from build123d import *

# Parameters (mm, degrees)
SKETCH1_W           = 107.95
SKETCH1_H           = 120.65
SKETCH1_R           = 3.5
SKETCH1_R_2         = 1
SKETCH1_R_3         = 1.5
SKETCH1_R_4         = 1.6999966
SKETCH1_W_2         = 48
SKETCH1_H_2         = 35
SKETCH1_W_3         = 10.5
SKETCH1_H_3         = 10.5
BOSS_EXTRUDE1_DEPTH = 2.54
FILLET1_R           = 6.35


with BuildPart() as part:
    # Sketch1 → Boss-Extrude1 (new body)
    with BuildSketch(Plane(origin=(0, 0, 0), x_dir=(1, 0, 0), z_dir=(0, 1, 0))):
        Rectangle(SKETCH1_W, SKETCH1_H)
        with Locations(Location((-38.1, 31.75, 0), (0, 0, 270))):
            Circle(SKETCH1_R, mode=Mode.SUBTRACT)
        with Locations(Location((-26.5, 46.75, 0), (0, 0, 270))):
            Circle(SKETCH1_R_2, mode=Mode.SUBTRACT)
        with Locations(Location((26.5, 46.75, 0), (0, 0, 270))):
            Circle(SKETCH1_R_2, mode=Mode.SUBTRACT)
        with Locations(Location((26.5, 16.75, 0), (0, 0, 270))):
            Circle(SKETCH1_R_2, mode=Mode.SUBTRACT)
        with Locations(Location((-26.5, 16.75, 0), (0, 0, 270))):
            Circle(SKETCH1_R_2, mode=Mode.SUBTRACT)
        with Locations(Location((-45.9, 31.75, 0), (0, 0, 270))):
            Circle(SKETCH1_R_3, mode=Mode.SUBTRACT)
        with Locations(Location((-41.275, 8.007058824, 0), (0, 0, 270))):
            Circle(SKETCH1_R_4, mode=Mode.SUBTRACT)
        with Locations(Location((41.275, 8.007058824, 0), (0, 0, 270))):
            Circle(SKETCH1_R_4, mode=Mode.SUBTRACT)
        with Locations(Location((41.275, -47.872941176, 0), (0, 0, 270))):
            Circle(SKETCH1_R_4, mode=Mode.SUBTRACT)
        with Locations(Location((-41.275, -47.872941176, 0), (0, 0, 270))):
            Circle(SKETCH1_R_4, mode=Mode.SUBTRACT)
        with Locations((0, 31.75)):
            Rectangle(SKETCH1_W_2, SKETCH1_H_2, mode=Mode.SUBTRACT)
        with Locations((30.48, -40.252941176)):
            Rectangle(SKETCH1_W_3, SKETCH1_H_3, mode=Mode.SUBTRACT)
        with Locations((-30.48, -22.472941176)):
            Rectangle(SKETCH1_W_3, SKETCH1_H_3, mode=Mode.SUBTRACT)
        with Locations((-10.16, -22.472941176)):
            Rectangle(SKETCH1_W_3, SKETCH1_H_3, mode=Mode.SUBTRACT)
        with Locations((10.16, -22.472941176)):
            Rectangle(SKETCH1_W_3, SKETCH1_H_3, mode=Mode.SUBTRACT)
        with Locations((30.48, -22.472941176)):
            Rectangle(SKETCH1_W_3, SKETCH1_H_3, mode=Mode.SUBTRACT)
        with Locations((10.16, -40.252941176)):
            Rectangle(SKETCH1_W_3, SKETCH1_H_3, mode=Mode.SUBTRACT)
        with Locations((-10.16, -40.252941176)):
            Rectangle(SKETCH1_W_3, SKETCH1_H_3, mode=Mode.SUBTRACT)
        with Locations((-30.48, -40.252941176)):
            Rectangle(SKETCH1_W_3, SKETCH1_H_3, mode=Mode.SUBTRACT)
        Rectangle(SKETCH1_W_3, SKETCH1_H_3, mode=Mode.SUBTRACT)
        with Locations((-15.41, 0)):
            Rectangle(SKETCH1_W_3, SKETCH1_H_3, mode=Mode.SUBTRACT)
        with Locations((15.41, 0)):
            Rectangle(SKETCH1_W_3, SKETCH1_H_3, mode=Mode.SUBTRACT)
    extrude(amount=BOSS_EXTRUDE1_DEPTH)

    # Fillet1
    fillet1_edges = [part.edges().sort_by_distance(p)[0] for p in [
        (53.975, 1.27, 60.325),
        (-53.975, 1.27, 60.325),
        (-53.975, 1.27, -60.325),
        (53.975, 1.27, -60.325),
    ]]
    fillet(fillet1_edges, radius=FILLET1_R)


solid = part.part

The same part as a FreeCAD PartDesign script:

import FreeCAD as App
import Part
import Sketcher


def edges_at(feature, points):
    """Names of the edges that pass closest to the given points."""
    edges = feature.Shape.Edges
    near = lambda p: min(range(len(edges)), key=lambda i: edges[i].distToShape(Part.Vertex(*p))[0])
    return sorted({f"Edge{near(p) + 1}" for p in points})

doc = App.newDocument("Part")
params = doc.addObject("Spreadsheet::Sheet", "Params")
for row, (alias, value) in enumerate([
    ("sketch1_diameter", "2 mm"),
    ("sketch1_diameter2", "3 mm"),
    ("sketch1_diameter3", "7 mm"),
    ("sketch1_width", "48 mm"),
    ("sketch1_height", "35 mm"),
    ("pad1_length", "2.54 mm"),
    ("fillet_radius", "6.35 mm"),
], start=1):
    params.set(f"A{row}", alias)
    params.set(f"B{row}", "=" + value)
    params.setAlias(f"B{row}", alias)

body = doc.addObject("PartDesign::Body", "Body")

sketch1 = doc.addObject("Sketcher::SketchObject", "Sketch")
body.addObject(sketch1)
sketch1.AttachmentSupport = (doc.XZ_Plane, [""])
sketch1.MapMode = "FlatFace"
sketch1.addGeometry(Part.LineSegment(App.Vector(-53.975, -60.325, 0), App.Vector(-53.975, 60.325, 0)), False)
sketch1.addGeometry(Part.LineSegment(App.Vector(-53.975, 60.325, 0), App.Vector(53.975, 60.325, 0)), False)
sketch1.addGeometry(Part.LineSegment(App.Vector(53.975, 60.325, 0), App.Vector(53.975, -60.325, 0)), False)
sketch1.addGeometry(Part.LineSegment(App.Vector(53.975, -60.325, 0), App.Vector(-53.975, -60.325, 0)), False)
sketch1.addGeometry(Part.Circle(App.Vector(-41.275, 47.872941, 0), App.Vector(0, 0, 1), 1.699997), False)
sketch1.addGeometry(Part.LineSegment(App.Vector(-25.23, 45.502941, 0), App.Vector(-35.73, 45.502941, 0)), False)
sketch1.addGeometry(Part.LineSegment(App.Vector(-35.73, 45.502941, 0), App.Vector(-35.73, 35.002941, 0)), False)
sketch1.addGeometry(Part.LineSegment(App.Vector(-35.73, 35.002941, 0), App.Vector(-25.23, 35.002941, 0)), False)
sketch1.addGeometry(Part.LineSegment(App.Vector(-25.23, 35.002941, 0), App.Vector(-25.23, 45.502941, 0)), False)
sketch1.addGeometry(Part.LineSegment(App.Vector(-4.91, 45.502941, 0), App.Vector(-15.41, 45.502941, 0)), False)
sketch1.addGeometry(Part.LineSegment(App.Vector(-15.41, 45.502941, 0), App.Vector(-15.41, 35.002941, 0)), False)
sketch1.addGeometry(Part.LineSegment(App.Vector(-15.41, 35.002941, 0), App.Vector(-4.91, 35.002941, 0)), False)
sketch1.addGeometry(Part.LineSegment(App.Vector(-4.91, 35.002941, 0), App.Vector(-4.91, 45.502941, 0)), False)
sketch1.addGeometry(Part.LineSegment(App.Vector(-25.23, 27.722941, 0), App.Vector(-35.73, 27.722941, 0)), False)
sketch1.addGeometry(Part.LineSegment(App.Vector(-35.73, 27.722941, 0), App.Vector(-35.73, 17.222941, 0)), False)
sketch1.addGeometry(Part.LineSegment(App.Vector(-35.73, 17.222941, 0), App.Vector(-25.23, 17.222941, 0)), False)
sketch1.addGeometry(Part.LineSegment(App.Vector(-25.23, 17.222941, 0), App.Vector(-25.23, 27.722941, 0)), False)
sketch1.addGeometry(Part.LineSegment(App.Vector(-4.91, 27.722941, 0), App.Vector(-15.41, 27.722941, 0)), False)
sketch1.addGeometry(Part.LineSegment(App.Vector(-15.41, 27.722941, 0), App.Vector(-15.41, 17.222941, 0)), False)
sketch1.addGeometry(Part.LineSegment(App.Vector(-15.41, 17.222941, 0), App.Vector(-4.91, 17.222941, 0)), False)
sketch1.addGeometry(Part.LineSegment(App.Vector(-4.91, 17.222941, 0), App.Vector(-4.91, 27.722941, 0)), False)
sketch1.addGeometry(Part.LineSegment(App.Vector(15.41, 45.502941, 0), App.Vector(4.91, 45.502941, 0)), False)
sketch1.addGeometry(Part.LineSegment(App.Vector(4.91, 45.502941, 0), App.Vector(4.91, 35.002941, 0)), False)
sketch1.addGeometry(Part.LineSegment(App.Vector(4.91, 35.002941, 0), App.Vector(15.41, 35.002941, 0)), False)
sketch1.addGeometry(Part.LineSegment(App.Vector(15.41, 35.002941, 0), App.Vector(15.41, 45.502941, 0)), False)
sketch1.addGeometry(Part.LineSegment(App.Vector(35.73, 45.502941, 0), App.Vector(25.23, 45.502941, 0)), False)
sketch1.addGeometry(Part.LineSegment(App.Vector(25.23, 45.502941, 0), App.Vector(25.23, 35.002941, 0)), False)
sketch1.addGeometry(Part.LineSegment(App.Vector(25.23, 35.002941, 0), App.Vector(35.73, 35.002941, 0)), False)
sketch1.addGeometry(Part.LineSegment(App.Vector(35.73, 35.002941, 0), App.Vector(35.73, 45.502941, 0)), False)
sketch1.addGeometry(Part.Circle(App.Vector(41.275, 47.872941, 0), App.Vector(0, 0, 1), 1.699997), False)
sketch1.addGeometry(Part.LineSegment(App.Vector(15.41, 27.722941, 0), App.Vector(4.91, 27.722941, 0)), False)
sketch1.addGeometry(Part.LineSegment(App.Vector(4.91, 27.722941, 0), App.Vector(4.91, 17.222941, 0)), False)
sketch1.addGeometry(Part.LineSegment(App.Vector(4.91, 17.222941, 0), App.Vector(15.41, 17.222941, 0)), False)
sketch1.addGeometry(Part.LineSegment(App.Vector(15.41, 17.222941, 0), App.Vector(15.41, 27.722941, 0)), False)
sketch1.addGeometry(Part.LineSegment(App.Vector(35.73, 27.722941, 0), App.Vector(25.23, 27.722941, 0)), False)
sketch1.addGeometry(Part.LineSegment(App.Vector(25.23, 27.722941, 0), App.Vector(25.23, 17.222941, 0)), False)
sketch1.addGeometry(Part.LineSegment(App.Vector(25.23, 17.222941, 0), App.Vector(35.73, 17.222941, 0)), False)
sketch1.addGeometry(Part.LineSegment(App.Vector(35.73, 17.222941, 0), App.Vector(35.73, 27.722941, 0)), False)
sketch1.addGeometry(Part.Circle(App.Vector(-41.275, -8.007059, 0), App.Vector(0, 0, 1), 1.699997), False)
sketch1.addGeometry(Part.Circle(App.Vector(-26.5, -16.75, 0), App.Vector(0, 0, 1), 1), False)
sketch1.addGeometry(Part.LineSegment(App.Vector(-10.16, 5.25, 0), App.Vector(-20.66, 5.25, 0)), False)
sketch1.addGeometry(Part.LineSegment(App.Vector(-20.66, 5.25, 0), App.Vector(-20.66, -5.25, 0)), False)
sketch1.addGeometry(Part.LineSegment(App.Vector(-20.66, -5.25, 0), App.Vector(-10.16, -5.25, 0)), False)
sketch1.addGeometry(Part.LineSegment(App.Vector(-10.16, -5.25, 0), App.Vector(-10.16, 5.25, 0)), False)
sketch1.addGeometry(Part.Circle(App.Vector(-45.9, -31.75, 0), App.Vector(0, 0, 1), 1.5), False)
sketch1.addGeometry(Part.Circle(App.Vector(-38.1, -31.75, 0), App.Vector(0, 0, 1), 3.5), False)
sketch1.addGeometry(Part.Circle(App.Vector(-26.5, -46.75, 0), App.Vector(0, 0, 1), 1), False)
sketch1.addGeometry(Part.LineSegment(App.Vector(5.25, 5.25, 0), App.Vector(-5.25, 5.25, 0)), False)
sketch1.addGeometry(Part.LineSegment(App.Vector(-5.25, 5.25, 0), App.Vector(-5.25, -5.25, 0)), False)
sketch1.addGeometry(Part.LineSegment(App.Vector(-5.25, -5.25, 0), App.Vector(5.25, -5.25, 0)), False)
sketch1.addGeometry(Part.LineSegment(App.Vector(5.25, -5.25, 0), App.Vector(5.25, 5.25, 0)), False)
sketch1.addGeometry(Part.LineSegment(App.Vector(20.66, 5.25, 0), App.Vector(10.16, 5.25, 0)), False)
sketch1.addGeometry(Part.LineSegment(App.Vector(10.16, 5.25, 0), App.Vector(10.16, -5.25, 0)), False)
sketch1.addGeometry(Part.LineSegment(App.Vector(10.16, -5.25, 0), App.Vector(20.66, -5.25, 0)), False)
sketch1.addGeometry(Part.LineSegment(App.Vector(20.66, -5.25, 0), App.Vector(20.66, 5.25, 0)), False)
sketch1.addGeometry(Part.Circle(App.Vector(41.275, -8.007059, 0), App.Vector(0, 0, 1), 1.699997), False)
sketch1.addGeometry(Part.Circle(App.Vector(26.5, -16.75, 0), App.Vector(0, 0, 1), 1), False)
sketch1.addGeometry(Part.LineSegment(App.Vector(24, -14.25, 0), App.Vector(-24, -14.25, 0)), False)
sketch1.addGeometry(Part.LineSegment(App.Vector(-24, -14.25, 0), App.Vector(-24, -49.25, 0)), False)
sketch1.addGeometry(Part.LineSegment(App.Vector(-24, -49.25, 0), App.Vector(24, -49.25, 0)), False)
sketch1.addGeometry(Part.LineSegment(App.Vector(24, -49.25, 0), App.Vector(24, -14.25, 0)), False)
sketch1.addGeometry(Part.Circle(App.Vector(26.5, -46.75, 0), App.Vector(0, 0, 1), 1), False)
sketch1.addConstraint(Sketcher.Constraint("Coincident", 0, 2, 1, 1))
sketch1.addConstraint(Sketcher.Constraint("Coincident", 1, 2, 2, 1))
sketch1.addConstraint(Sketcher.Constraint("Coincident", 2, 2, 3, 1))
sketch1.addConstraint(Sketcher.Constraint("Coincident", 3, 2, 0, 1))
sketch1.addConstraint(Sketcher.Constraint("Coincident", 5, 2, 6, 1))
sketch1.addConstraint(Sketcher.Constraint("Coincident", 6, 2, 7, 1))
sketch1.addConstraint(Sketcher.Constraint("Coincident", 7, 2, 8, 1))
sketch1.addConstraint(Sketcher.Constraint("Coincident", 8, 2, 5, 1))
sketch1.addConstraint(Sketcher.Constraint("Coincident", 9, 2, 10, 1))
sketch1.addConstraint(Sketcher.Constraint("Coincident", 10, 2, 11, 1))
sketch1.addConstraint(Sketcher.Constraint("Coincident", 11, 2, 12, 1))
sketch1.addConstraint(Sketcher.Constraint("Coincident", 12, 2, 9, 1))
sketch1.addConstraint(Sketcher.Constraint("Coincident", 13, 2, 14, 1))
sketch1.addConstraint(Sketcher.Constraint("Coincident", 14, 2, 15, 1))
sketch1.addConstraint(Sketcher.Constraint("Coincident", 15, 2, 16, 1))
sketch1.addConstraint(Sketcher.Constraint("Coincident", 16, 2, 13, 1))
sketch1.addConstraint(Sketcher.Constraint("Coincident", 17, 2, 18, 1))
sketch1.addConstraint(Sketcher.Constraint("Coincident", 18, 2, 19, 1))
sketch1.addConstraint(Sketcher.Constraint("Coincident", 19, 2, 20, 1))
sketch1.addConstraint(Sketcher.Constraint("Coincident", 20, 2, 17, 1))
sketch1.addConstraint(Sketcher.Constraint("Coincident", 21, 2, 22, 1))
sketch1.addConstraint(Sketcher.Constraint("Coincident", 22, 2, 23, 1))
sketch1.addConstraint(Sketcher.Constraint("Coincident", 23, 2, 24, 1))
sketch1.addConstraint(Sketcher.Constraint("Coincident", 24, 2, 21, 1))
sketch1.addConstraint(Sketcher.Constraint("Coincident", 25, 2, 26, 1))
sketch1.addConstraint(Sketcher.Constraint("Coincident", 26, 2, 27, 1))
sketch1.addConstraint(Sketcher.Constraint("Coincident", 27, 2, 28, 1))
sketch1.addConstraint(Sketcher.Constraint("Coincident", 28, 2, 25, 1))
sketch1.addConstraint(Sketcher.Constraint("Coincident", 30, 2, 31, 1))
sketch1.addConstraint(Sketcher.Constraint("Coincident", 31, 2, 32, 1))
sketch1.addConstraint(Sketcher.Constraint("Coincident", 32, 2, 33, 1))
sketch1.addConstraint(Sketcher.Constraint("Coincident", 33, 2, 30, 1))
sketch1.addConstraint(Sketcher.Constraint("Coincident", 34, 2, 35, 1))
sketch1.addConstraint(Sketcher.Constraint("Coincident", 35, 2, 36, 1))
sketch1.addConstraint(Sketcher.Constraint("Coincident", 36, 2, 37, 1))
sketch1.addConstraint(Sketcher.Constraint("Coincident", 37, 2, 34, 1))
sketch1.addConstraint(Sketcher.Constraint("Coincident", 40, 2, 41, 1))
sketch1.addConstraint(Sketcher.Constraint("Coincident", 41, 2, 42, 1))
sketch1.addConstraint(Sketcher.Constraint("Coincident", 42, 2, 43, 1))
sketch1.addConstraint(Sketcher.Constraint("Coincident", 43, 2, 40, 1))
sketch1.addConstraint(Sketcher.Constraint("Coincident", 47, 2, 48, 1))
sketch1.addConstraint(Sketcher.Constraint("Coincident", 48, 2, 49, 1))
sketch1.addConstraint(Sketcher.Constraint("Coincident", 49, 2, 50, 1))
sketch1.addConstraint(Sketcher.Constraint("Coincident", 50, 2, 47, 1))
sketch1.addConstraint(Sketcher.Constraint("Coincident", 51, 2, 52, 1))
sketch1.addConstraint(Sketcher.Constraint("Coincident", 52, 2, 53, 1))
sketch1.addConstraint(Sketcher.Constraint("Coincident", 53, 2, 54, 1))
sketch1.addConstraint(Sketcher.Constraint("Coincident", 54, 2, 51, 1))
sketch1.addConstraint(Sketcher.Constraint("Coincident", 57, 2, 58, 1))
sketch1.addConstraint(Sketcher.Constraint("Coincident", 58, 2, 59, 1))
sketch1.addConstraint(Sketcher.Constraint("Coincident", 59, 2, 60, 1))
sketch1.addConstraint(Sketcher.Constraint("Coincident", 60, 2, 57, 1))
sketch1.addConstraint(Sketcher.Constraint("Vertical", 0))
sketch1.addConstraint(Sketcher.Constraint("Horizontal", 1))
sketch1.addConstraint(Sketcher.Constraint("Vertical", 2))
sketch1.addConstraint(Sketcher.Constraint("Horizontal", 3))
sketch1.addConstraint(Sketcher.Constraint("Horizontal", 5))
sketch1.addConstraint(Sketcher.Constraint("Vertical", 6))
sketch1.addConstraint(Sketcher.Constraint("Horizontal", 7))
sketch1.addConstraint(Sketcher.Constraint("Vertical", 8))
sketch1.addConstraint(Sketcher.Constraint("Horizontal", 9))
sketch1.addConstraint(Sketcher.Constraint("Vertical", 10))
sketch1.addConstraint(Sketcher.Constraint("Horizontal", 11))
sketch1.addConstraint(Sketcher.Constraint("Vertical", 12))
sketch1.addConstraint(Sketcher.Constraint("Horizontal", 13))
sketch1.addConstraint(Sketcher.Constraint("Vertical", 14))
sketch1.addConstraint(Sketcher.Constraint("Horizontal", 15))
sketch1.addConstraint(Sketcher.Constraint("Vertical", 16))
sketch1.addConstraint(Sketcher.Constraint("Horizontal", 17))
sketch1.addConstraint(Sketcher.Constraint("Vertical", 18))
sketch1.addConstraint(Sketcher.Constraint("Horizontal", 19))
sketch1.addConstraint(Sketcher.Constraint("Vertical", 20))
sketch1.addConstraint(Sketcher.Constraint("Horizontal", 21))
sketch1.addConstraint(Sketcher.Constraint("Vertical", 22))
sketch1.addConstraint(Sketcher.Constraint("Horizontal", 23))
sketch1.addConstraint(Sketcher.Constraint("Vertical", 24))
sketch1.addConstraint(Sketcher.Constraint("Horizontal", 25))
sketch1.addConstraint(Sketcher.Constraint("Vertical", 26))
sketch1.addConstraint(Sketcher.Constraint("Horizontal", 27))
sketch1.addConstraint(Sketcher.Constraint("Vertical", 28))
sketch1.addConstraint(Sketcher.Constraint("Horizontal", 30))
sketch1.addConstraint(Sketcher.Constraint("Vertical", 31))
sketch1.addConstraint(Sketcher.Constraint("Horizontal", 32))
sketch1.addConstraint(Sketcher.Constraint("Vertical", 33))
sketch1.addConstraint(Sketcher.Constraint("Horizontal", 34))
sketch1.addConstraint(Sketcher.Constraint("Vertical", 35))
sketch1.addConstraint(Sketcher.Constraint("Horizontal", 36))
sketch1.addConstraint(Sketcher.Constraint("Vertical", 37))
sketch1.addConstraint(Sketcher.Constraint("Horizontal", 40))
sketch1.addConstraint(Sketcher.Constraint("Vertical", 41))
sketch1.addConstraint(Sketcher.Constraint("Horizontal", 42))
sketch1.addConstraint(Sketcher.Constraint("Vertical", 43))
sketch1.addConstraint(Sketcher.Constraint("Horizontal", 47))
sketch1.addConstraint(Sketcher.Constraint("Vertical", 48))
sketch1.addConstraint(Sketcher.Constraint("Horizontal", 49))
sketch1.addConstraint(Sketcher.Constraint("Vertical", 50))
sketch1.addConstraint(Sketcher.Constraint("Horizontal", 51))
sketch1.addConstraint(Sketcher.Constraint("Vertical", 52))
sketch1.addConstraint(Sketcher.Constraint("Horizontal", 53))
sketch1.addConstraint(Sketcher.Constraint("Vertical", 54))
sketch1.addConstraint(Sketcher.Constraint("Horizontal", 57))
sketch1.addConstraint(Sketcher.Constraint("Vertical", 58))
sketch1.addConstraint(Sketcher.Constraint("Horizontal", 59))
sketch1.addConstraint(Sketcher.Constraint("Vertical", 60))
sketch1.addConstraint(Sketcher.Constraint("Equal", 4, 29))
sketch1.addConstraint(Sketcher.Constraint("Equal", 29, 38))
sketch1.addConstraint(Sketcher.Constraint("Equal", 39, 46))
sketch1.addConstraint(Sketcher.Constraint("Equal", 38, 55))
sketch1.addConstraint(Sketcher.Constraint("Equal", 46, 56))
sketch1.addConstraint(Sketcher.Constraint("Equal", 56, 61))
sketch1.addConstraint(Sketcher.Constraint("Symmetric", 0, 2, 2, 2, -1, 1))
sketch1.addConstraint(Sketcher.Constraint("Symmetric", 47, 2, 49, 2, -1, 1))
sketch1.addConstraint(Sketcher.Constraint("Symmetric", 42, 2, 51, 2, -1, 1))
sketch1.addConstraint(Sketcher.Constraint("Symmetric", 40, 2, 53, 2, -1, 1))
sketch1.addConstraint(Sketcher.Constraint("Symmetric", 4, 3, 29, 3, -2))
sketch1.addConstraint(Sketcher.Constraint("Symmetric", 38, 3, 55, 3, -2))
sketch1.addConstraint(Sketcher.Constraint("Symmetric", 39, 3, 56, 3, -2))
sketch1.addConstraint(Sketcher.Constraint("Symmetric", 46, 3, 61, 3, -2))
sketch1.addConstraint(Sketcher.Constraint("Symmetric", 12, 2, 21, 2, -2))
sketch1.addConstraint(Sketcher.Constraint("Symmetric", 10, 2, 23, 2, -2))
sketch1.addConstraint(Sketcher.Constraint("Symmetric", 8, 2, 25, 2, -2))
sketch1.addConstraint(Sketcher.Constraint("Symmetric", 6, 2, 27, 2, -2))
sketch1.addConstraint(Sketcher.Constraint("Symmetric", 20, 2, 30, 2, -2))
sketch1.addConstraint(Sketcher.Constraint("Symmetric", 18, 2, 32, 2, -2))
sketch1.addConstraint(Sketcher.Constraint("Symmetric", 16, 2, 34, 2, -2))
sketch1.addConstraint(Sketcher.Constraint("Symmetric", 14, 2, 36, 2, -2))
sketch1.addConstraint(Sketcher.Constraint("Horizontal", 44, 3, 45, 3))
sketch1.addConstraint(Sketcher.Constraint("Horizontal", 8, 2, 9, 2))
sketch1.addConstraint(Sketcher.Constraint("Horizontal", 7, 2, 10, 2))
sketch1.addConstraint(Sketcher.Constraint("Horizontal", 16, 2, 17, 2))
sketch1.addConstraint(Sketcher.Constraint("Horizontal", 15, 2, 18, 2))
sketch1.addConstraint(Sketcher.Constraint("Horizontal", 43, 2, 47, 2))
sketch1.addConstraint(Sketcher.Constraint("Horizontal", 42, 2, 48, 2))
sketch1.addConstraint(Sketcher.Constraint("Vertical", 4, 3, 38, 3))
sketch1.addConstraint(Sketcher.Constraint("Vertical", 39, 3, 46, 3))
sketch1.addConstraint(Sketcher.Constraint("Vertical", 6, 2, 13, 2))
sketch1.addConstraint(Sketcher.Constraint("Vertical", 8, 2, 15, 2))
sketch1.addConstraint(Sketcher.Constraint("Vertical", 10, 2, 17, 2))
sketch1.addConstraint(Sketcher.Constraint("Vertical", 12, 2, 19, 2))
sketch1.addConstraint(Sketcher.Constraint("Equal", 7, 9))
sketch1.addConstraint(Sketcher.Constraint("Equal", 36, 40))
sketch1.addConstraint(Sketcher.Constraint("Equal", 42, 47))
sketch1.addConstraint(Sketcher.Constraint("Equal", 53, 6))
sketch1.addConstraint(Sketcher.Constraint("Equal", 12, 14))
sketch1.addConstraint(Sketcher.Constraint("Equal", 37, 41))
sketch1.addConstraint(Sketcher.Constraint("Diameter", 39, 2.0))
sketch1.addConstraint(Sketcher.Constraint("Diameter", 44, 3.0))
sketch1.addConstraint(Sketcher.Constraint("Diameter", 45, 7.0))
sketch1.addConstraint(Sketcher.Constraint("DistanceX", 57, 2, 57, 1, 48.0))
sketch1.addConstraint(Sketcher.Constraint("DistanceY", 58, 2, 58, 1, 35.0))
sketch1.addConstraint(Sketcher.Constraint("DistanceX", 5, 2, 5, 1, 10.5))
sketch1.addConstraint(Sketcher.Constraint("DistanceX", 57, 2, -1, 1, 24.0))
sketch1.addConstraint(Sketcher.Constraint("DistanceX", 1, 1, 1, 2, 107.95))
sketch1.addConstraint(Sketcher.Constraint("DistanceY", 0, 1, 0, 2, 120.65))
sketch1.addConstraint(Sketcher.Constraint("DistanceX", 39, 3, -1, 1, 26.5))
sketch1.addConstraint(Sketcher.Constraint("DistanceX", 44, 3, -1, 1, 45.9))
sketch1.addConstraint(Sketcher.Constraint("DistanceX", 45, 3, -1, 1, 38.1))
sketch1.addConstraint(Sketcher.Constraint("DistanceY", 39, 3, -1, 1, 16.75))
sketch1.addConstraint(Sketcher.Constraint("DistanceY", 44, 3, -1, 1, 31.75))
sketch1.addConstraint(Sketcher.Constraint("DistanceY", 46, 3, -1, 1, 46.75))
sketch1.addConstraint(Sketcher.Constraint("DistanceX", 5, 2, -1, 1, 35.73))
sketch1.addConstraint(Sketcher.Constraint("DistanceX", 9, 2, -1, 1, 15.41))
sketch1.addConstraint(Sketcher.Constraint("DistanceX", 40, 2, -1, 1, 20.66))
sketch1.addConstraint(Sketcher.Constraint("DistanceY", 57, 2, -1, 1, 14.25))
sketch1.addConstraint(Sketcher.Constraint("Diameter", 4, 3.399993))
sketch1.addConstraint(Sketcher.Constraint("DistanceX", 4, 3, -1, 1, 41.275))
sketch1.addConstraint(Sketcher.Constraint("DistanceY", -1, 1, 4, 3, 47.872941))
sketch1.addConstraint(Sketcher.Constraint("DistanceY", 38, 3, -1, 1, 8.007059))
sketch1.addConstraint(Sketcher.Constraint("DistanceY", -1, 1, 5, 2, 45.502941))
sketch1.addConstraint(Sketcher.Constraint("DistanceY", -1, 1, 13, 2, 27.722941))
sketch1.setExpression("Constraints[145]", "Params.sketch1_diameter")
sketch1.setExpression("Constraints[146]", "Params.sketch1_diameter2")
sketch1.setExpression("Constraints[147]", "Params.sketch1_diameter3")
sketch1.setExpression("Constraints[148]", "Params.sketch1_width")
sketch1.setExpression("Constraints[149]", "Params.sketch1_height")
pad1 = doc.addObject("PartDesign::Pad", "Pad")
body.addObject(pad1)
pad1.Profile = sketch1
pad1.setExpression("Length", "Params.pad1_length")
pad1.Reversed = True
doc.recompute()

fillet = doc.addObject("PartDesign::Fillet", "Fillet")
body.addObject(fillet)
fillet.Base = (pad1, edges_at(pad1, [
    (53.975, 1.27, 60.325),
    (-53.975, 1.27, 60.325),
    (-53.975, 1.27, -60.325),
    (53.975, 1.27, -60.325),
]))
fillet.setExpression("Radius", "Params.fillet_radius")

doc.recompute()
